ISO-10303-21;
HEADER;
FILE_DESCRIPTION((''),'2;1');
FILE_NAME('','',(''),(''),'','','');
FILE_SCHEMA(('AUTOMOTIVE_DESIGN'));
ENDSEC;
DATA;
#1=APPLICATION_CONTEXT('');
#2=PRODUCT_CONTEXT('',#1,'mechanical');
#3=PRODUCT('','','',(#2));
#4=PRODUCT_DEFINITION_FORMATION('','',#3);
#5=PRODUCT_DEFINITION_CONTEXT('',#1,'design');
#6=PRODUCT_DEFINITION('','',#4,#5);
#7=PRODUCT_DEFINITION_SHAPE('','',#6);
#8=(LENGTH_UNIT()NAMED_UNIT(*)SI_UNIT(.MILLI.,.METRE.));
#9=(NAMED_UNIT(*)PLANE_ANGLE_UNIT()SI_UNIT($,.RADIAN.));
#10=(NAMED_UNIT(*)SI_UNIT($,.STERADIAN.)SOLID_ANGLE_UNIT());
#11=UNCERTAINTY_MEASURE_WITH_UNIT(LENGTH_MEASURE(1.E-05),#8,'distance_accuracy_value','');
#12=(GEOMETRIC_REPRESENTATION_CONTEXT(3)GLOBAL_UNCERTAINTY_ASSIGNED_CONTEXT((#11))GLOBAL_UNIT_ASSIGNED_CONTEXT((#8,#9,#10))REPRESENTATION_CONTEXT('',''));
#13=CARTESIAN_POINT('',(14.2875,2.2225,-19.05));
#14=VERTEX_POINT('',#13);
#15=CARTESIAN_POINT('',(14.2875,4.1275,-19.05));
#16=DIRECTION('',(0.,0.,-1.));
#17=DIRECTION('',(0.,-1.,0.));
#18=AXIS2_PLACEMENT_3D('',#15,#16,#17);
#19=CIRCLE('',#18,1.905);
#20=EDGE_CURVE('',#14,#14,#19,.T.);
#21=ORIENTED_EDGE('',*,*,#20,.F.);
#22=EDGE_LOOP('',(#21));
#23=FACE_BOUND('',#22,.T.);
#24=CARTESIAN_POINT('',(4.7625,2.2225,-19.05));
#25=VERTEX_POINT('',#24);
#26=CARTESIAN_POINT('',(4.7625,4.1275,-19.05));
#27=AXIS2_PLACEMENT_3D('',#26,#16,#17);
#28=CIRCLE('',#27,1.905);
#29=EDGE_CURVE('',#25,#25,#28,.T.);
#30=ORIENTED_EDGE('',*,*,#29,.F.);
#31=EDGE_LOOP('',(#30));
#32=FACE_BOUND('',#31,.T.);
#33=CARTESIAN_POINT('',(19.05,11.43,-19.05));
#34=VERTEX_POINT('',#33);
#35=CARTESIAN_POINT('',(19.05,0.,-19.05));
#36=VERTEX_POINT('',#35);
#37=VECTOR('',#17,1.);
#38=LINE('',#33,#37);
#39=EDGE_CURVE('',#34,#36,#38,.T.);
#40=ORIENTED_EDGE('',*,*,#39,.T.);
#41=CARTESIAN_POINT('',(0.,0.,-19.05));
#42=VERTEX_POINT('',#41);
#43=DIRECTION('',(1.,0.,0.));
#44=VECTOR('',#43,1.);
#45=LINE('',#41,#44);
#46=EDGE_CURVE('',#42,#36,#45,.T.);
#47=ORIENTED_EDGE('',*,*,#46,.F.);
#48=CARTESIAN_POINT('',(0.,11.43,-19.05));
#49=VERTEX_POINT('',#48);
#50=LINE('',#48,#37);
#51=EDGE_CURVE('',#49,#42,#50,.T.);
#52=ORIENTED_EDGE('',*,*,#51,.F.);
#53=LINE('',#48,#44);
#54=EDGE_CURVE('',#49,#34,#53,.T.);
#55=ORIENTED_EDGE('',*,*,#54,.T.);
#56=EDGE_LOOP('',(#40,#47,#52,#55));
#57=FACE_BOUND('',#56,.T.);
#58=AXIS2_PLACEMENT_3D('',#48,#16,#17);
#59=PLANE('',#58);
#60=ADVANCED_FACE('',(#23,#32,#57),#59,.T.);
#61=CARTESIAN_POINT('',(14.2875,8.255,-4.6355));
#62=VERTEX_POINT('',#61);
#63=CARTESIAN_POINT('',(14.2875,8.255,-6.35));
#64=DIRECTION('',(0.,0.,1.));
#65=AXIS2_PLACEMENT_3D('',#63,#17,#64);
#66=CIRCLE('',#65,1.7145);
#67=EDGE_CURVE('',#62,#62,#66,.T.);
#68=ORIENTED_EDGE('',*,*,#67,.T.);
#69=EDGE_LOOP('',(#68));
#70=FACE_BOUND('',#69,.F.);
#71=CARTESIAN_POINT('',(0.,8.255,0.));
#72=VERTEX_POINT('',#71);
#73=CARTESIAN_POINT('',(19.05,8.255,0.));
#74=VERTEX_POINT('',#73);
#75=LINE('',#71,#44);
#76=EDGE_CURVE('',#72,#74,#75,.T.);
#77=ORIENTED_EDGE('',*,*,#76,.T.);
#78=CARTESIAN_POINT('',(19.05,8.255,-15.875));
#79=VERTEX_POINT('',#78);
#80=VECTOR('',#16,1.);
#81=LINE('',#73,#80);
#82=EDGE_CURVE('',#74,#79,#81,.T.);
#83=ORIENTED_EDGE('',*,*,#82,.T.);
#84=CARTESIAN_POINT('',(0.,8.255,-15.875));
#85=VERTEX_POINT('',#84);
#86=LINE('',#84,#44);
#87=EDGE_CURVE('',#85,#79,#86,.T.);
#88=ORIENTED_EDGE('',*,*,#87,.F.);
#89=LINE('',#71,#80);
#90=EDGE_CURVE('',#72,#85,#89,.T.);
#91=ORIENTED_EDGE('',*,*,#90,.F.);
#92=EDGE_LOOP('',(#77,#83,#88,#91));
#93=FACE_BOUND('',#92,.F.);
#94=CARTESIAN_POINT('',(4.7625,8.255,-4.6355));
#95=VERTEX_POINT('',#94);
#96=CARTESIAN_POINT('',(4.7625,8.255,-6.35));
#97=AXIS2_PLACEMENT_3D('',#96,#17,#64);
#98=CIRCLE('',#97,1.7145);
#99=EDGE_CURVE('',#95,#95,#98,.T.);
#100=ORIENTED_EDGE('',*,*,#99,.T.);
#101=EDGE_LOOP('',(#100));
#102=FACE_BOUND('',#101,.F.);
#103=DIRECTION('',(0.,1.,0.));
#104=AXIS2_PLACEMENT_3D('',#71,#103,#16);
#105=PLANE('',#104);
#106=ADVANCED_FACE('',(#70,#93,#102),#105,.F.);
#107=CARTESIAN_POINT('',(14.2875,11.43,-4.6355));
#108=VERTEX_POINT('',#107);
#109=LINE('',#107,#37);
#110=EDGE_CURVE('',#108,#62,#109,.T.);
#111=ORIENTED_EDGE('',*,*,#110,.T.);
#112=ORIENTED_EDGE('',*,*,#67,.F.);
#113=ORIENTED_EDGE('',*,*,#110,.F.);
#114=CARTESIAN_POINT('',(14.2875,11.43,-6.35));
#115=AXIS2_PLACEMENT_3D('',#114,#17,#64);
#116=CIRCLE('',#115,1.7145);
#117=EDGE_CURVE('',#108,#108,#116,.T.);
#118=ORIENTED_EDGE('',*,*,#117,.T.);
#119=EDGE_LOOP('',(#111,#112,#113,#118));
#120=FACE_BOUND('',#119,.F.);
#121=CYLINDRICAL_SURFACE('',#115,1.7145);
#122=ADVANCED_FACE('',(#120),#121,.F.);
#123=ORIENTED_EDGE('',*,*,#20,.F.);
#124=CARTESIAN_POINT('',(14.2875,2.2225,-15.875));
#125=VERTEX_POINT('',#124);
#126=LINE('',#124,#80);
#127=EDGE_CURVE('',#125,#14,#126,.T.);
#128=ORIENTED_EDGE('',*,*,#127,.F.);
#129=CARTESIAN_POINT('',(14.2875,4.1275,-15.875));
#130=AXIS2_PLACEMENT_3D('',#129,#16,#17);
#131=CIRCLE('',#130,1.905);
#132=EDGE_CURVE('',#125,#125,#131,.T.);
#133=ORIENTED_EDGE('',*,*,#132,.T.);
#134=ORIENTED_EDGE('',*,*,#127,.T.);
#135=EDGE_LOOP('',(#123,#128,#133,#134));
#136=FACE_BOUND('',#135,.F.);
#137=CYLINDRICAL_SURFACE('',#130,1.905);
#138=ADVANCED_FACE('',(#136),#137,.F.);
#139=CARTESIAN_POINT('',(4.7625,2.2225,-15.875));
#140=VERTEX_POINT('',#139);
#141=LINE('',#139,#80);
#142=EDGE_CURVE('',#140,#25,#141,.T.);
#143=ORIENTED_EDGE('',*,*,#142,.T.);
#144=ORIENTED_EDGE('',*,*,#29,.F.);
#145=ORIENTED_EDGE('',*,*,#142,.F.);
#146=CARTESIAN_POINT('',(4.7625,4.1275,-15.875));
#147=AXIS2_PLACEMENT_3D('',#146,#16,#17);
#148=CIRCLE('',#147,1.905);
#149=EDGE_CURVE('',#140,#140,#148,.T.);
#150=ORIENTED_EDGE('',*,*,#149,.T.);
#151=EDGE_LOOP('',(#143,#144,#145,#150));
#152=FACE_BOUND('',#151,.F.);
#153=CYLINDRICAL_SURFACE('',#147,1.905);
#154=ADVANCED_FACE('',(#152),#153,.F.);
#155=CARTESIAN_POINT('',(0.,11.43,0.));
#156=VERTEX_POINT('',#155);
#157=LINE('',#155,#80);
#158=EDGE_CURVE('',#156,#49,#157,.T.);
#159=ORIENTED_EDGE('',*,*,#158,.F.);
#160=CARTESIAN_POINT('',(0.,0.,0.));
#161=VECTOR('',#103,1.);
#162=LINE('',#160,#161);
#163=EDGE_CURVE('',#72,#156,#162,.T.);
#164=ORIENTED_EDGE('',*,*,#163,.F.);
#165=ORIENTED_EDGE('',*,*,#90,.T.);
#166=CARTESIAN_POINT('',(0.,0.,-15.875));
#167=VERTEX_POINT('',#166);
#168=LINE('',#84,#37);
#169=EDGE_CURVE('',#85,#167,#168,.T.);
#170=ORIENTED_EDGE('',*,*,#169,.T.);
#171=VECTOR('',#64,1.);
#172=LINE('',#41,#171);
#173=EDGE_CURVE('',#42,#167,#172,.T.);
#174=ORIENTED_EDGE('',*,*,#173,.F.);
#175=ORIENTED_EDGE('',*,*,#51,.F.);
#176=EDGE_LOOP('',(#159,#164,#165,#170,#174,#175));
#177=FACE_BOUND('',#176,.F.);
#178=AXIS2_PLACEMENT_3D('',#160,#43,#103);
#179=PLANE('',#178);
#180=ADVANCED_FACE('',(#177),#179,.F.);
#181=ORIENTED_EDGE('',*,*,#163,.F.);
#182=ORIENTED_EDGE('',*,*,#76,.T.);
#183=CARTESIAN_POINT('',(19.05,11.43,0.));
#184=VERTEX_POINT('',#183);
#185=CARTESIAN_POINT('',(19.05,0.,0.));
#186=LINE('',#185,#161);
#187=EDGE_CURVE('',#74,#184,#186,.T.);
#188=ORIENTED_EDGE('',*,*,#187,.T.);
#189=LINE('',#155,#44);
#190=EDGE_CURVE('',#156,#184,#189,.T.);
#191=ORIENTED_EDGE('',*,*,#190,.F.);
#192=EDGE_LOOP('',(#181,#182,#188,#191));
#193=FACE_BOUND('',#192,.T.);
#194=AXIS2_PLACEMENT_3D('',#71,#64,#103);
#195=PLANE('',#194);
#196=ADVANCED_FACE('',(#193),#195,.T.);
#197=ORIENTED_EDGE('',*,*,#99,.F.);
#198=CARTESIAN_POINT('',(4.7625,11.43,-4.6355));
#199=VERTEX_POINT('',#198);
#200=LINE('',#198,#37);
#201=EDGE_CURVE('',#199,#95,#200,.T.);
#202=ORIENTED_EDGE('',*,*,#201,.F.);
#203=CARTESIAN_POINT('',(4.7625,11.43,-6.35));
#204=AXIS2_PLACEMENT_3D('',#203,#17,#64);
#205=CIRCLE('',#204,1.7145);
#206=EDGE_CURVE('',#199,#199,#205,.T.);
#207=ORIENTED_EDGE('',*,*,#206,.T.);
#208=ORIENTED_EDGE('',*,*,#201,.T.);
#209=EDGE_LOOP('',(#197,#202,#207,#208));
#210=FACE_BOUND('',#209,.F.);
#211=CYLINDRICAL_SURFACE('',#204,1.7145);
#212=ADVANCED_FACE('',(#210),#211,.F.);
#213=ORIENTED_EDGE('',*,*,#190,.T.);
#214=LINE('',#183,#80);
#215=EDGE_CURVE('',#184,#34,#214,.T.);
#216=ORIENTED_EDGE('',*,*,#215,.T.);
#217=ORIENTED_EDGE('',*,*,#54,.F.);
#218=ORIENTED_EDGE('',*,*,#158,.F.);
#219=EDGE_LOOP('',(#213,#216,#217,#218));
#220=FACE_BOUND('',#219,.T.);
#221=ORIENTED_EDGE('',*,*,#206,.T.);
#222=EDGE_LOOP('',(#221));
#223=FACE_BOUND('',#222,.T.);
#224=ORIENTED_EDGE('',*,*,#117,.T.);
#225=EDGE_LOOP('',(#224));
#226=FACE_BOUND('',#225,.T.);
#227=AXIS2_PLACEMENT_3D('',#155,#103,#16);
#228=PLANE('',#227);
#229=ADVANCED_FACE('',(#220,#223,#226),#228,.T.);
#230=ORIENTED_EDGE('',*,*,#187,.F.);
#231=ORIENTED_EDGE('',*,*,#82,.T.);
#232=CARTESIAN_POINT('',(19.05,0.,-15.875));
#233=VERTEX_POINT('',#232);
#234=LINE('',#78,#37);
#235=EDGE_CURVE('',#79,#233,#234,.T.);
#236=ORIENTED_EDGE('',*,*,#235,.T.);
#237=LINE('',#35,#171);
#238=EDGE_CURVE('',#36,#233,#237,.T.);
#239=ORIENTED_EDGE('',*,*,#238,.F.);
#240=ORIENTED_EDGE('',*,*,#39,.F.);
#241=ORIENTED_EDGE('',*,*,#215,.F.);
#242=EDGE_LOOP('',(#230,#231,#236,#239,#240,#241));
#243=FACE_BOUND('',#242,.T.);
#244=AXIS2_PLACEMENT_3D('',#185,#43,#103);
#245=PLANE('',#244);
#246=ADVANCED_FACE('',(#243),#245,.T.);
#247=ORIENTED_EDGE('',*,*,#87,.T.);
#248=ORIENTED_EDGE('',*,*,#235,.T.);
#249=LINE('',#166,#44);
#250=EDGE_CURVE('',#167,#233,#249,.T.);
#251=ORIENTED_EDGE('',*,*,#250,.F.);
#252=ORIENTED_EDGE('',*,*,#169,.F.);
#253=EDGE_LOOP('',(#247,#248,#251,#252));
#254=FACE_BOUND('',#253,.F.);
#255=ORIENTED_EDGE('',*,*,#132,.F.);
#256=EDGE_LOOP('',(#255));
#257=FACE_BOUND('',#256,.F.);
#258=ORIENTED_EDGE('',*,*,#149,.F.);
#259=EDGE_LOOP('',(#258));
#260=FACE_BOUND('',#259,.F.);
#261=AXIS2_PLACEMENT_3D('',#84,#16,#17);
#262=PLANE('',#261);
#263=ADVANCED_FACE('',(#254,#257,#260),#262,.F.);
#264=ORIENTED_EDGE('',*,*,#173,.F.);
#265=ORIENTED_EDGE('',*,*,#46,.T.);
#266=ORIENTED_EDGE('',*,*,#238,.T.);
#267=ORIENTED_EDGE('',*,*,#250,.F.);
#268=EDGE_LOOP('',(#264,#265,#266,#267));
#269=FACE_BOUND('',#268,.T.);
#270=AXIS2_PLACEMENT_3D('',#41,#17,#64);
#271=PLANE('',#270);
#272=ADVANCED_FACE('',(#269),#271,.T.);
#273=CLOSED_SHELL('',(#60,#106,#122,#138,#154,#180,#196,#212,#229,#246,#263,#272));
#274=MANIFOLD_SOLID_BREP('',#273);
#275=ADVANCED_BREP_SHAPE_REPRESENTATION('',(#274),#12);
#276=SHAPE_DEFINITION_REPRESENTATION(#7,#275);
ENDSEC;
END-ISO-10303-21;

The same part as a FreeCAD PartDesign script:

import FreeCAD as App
import Part
import Sketcher
from FreeCAD import Vector
Q = App.Units.Quantity


def add_polygon(sketch, points):
    """Adds a closed chain of lines whose ends are joined by coincident constraints."""
    first, n = sketch.GeometryCount, len(points)
    for a, b in zip(points, points[1:] + points[:1]):
        sketch.addGeometry(Part.LineSegment(App.Vector(*a, 0), App.Vector(*b, 0)), False)
    for i in range(n):
        sketch.addConstraint(Sketcher.Constraint("Coincident", first + i, 2, first + (i + 1) % n, 1))

doc = App.newDocument("Part")
body = doc.addObject("PartDesign::Body", "Body")

sketch1 = body.newObject("Sketcher::SketchObject", "Sketch")
sketch1.AttachmentSupport = (doc.getObject("YZ_Plane"), [""])
sketch1.MapMode = "FlatFace"
add_polygon(sketch1, [(11.43, 0), (8.255, 0), (8.255, -15.875), (0, -15.875), (0, -19.05), (11.43, -19.05)])
sketch1.addConstraint([
    Sketcher.Constraint("Horizontal", 0),
    Sketcher.Constraint("Vertical", 1),
    Sketcher.Constraint("Horizontal", 2),
    Sketcher.Constraint("Vertical", 3),
    Sketcher.Constraint("Horizontal", 4),
    Sketcher.Constraint("Vertical", 5),
    Sketcher.Constraint("PointOnObject", 0, 2, -1),
    Sketcher.Constraint("PointOnObject", 2, 2, -2),
    Sketcher.Constraint("Equal", 0, 3),
    Sketcher.Constraint("DistanceX", 4, 1, 4, 2, Q("0.45 in")),
    Sketcher.Constraint("DistanceY", 5, 1, 5, 2, Q("0.75 in")),
    Sketcher.Constraint("DistanceX", 2, 2, 2, 1, Q("0.325 in")),
])
pad1 = body.newObject("PartDesign::Pad", "Pad")
pad1.Profile = sketch1
pad1.Length = Q("0.75 in")

sketch2 = body.newObject("Sketcher::SketchObject", "Sketch001")
sketch2.AttachmentSupport = (doc.getObject("XZ_Plane"), [""])
sketch2.MapMode = "FlatFace"
sketch2.AttachmentOffset = App.Placement(Vector(0, 0, -0.45 * 25.4), App.Rotation())
sketch2.addGeometry([
    Part.Circle(Vector(4.7625, -6.35, 0), Vector(0, 0, 1), 1.7145),
    Part.Circle(Vector(14.2875, -6.35, 0), Vector(0, 0, 1), 1.7145),
], False)
sketch2.addConstraint([
    Sketcher.Constraint("Equal", 0, 1),
    Sketcher.Constraint("Horizontal", 0, 3, 1, 3),
    Sketcher.Constraint("Diameter", 0, Q("0.135 in")),
    Sketcher.Constraint("DistanceY", 0, 3, -1, 1, Q("0.25 in")),
    Sketcher.Constraint("DistanceX", -1, 1, 0, 3, Q("0.1875 in")),
    Sketcher.Constraint("DistanceX", -1, 1, 1, 3, Q("0.5625 in")),
])
doc.recompute()
hole = body.newObject("PartDesign::Hole", "Hole")
hole.Profile = sketch2
hole.ThreadType = "None"
hole.Diameter = Q("0.135 in")
hole.DepthType = "ThroughAll"
hole.Reversed = True

sketch3 = body.newObject("Sketcher::SketchObject", "Sketch002")
sketch3.AttachmentSupport = (doc.getObject("XY_Plane"), [""])
sketch3.MapMode = "FlatFace"
sketch3.AttachmentOffset = App.Placement(Vector(0, 0, -0.625 * 25.4), App.Rotation())
sketch3.addGeometry([
    Part.Circle(Vector(4.7625, 4.1275, 0), Vector(0, 0, 1), 1.905),
    Part.Circle(Vector(14.2875, 4.1275, 0), Vector(0, 0, 1), 1.905),
], False)
sketch3.addConstraint([
    Sketcher.Constraint("Equal", 0, 1),
    Sketcher.Constraint("Horizontal", 0, 3, 1, 3),
    Sketcher.Constraint("Diameter", 0, Q("0.15 in")),
    Sketcher.Constraint("DistanceX", -1, 1, 0, 3, Q("0.1875 in")),
    Sketcher.Constraint("DistanceX", -1, 1, 1, 3, Q("0.5625 in")),
    Sketcher.Constraint("DistanceY", -1, 1, 0, 3, Q("0.1625 in")),
])
doc.recompute()
hole2 = body.newObject("PartDesign::Hole", "Hole001")
hole2.Profile = sketch3
hole2.ThreadType = "None"
hole2.Diameter = Q("0.15 in")
hole2.DepthType = "ThroughAll"

doc.recompute()
